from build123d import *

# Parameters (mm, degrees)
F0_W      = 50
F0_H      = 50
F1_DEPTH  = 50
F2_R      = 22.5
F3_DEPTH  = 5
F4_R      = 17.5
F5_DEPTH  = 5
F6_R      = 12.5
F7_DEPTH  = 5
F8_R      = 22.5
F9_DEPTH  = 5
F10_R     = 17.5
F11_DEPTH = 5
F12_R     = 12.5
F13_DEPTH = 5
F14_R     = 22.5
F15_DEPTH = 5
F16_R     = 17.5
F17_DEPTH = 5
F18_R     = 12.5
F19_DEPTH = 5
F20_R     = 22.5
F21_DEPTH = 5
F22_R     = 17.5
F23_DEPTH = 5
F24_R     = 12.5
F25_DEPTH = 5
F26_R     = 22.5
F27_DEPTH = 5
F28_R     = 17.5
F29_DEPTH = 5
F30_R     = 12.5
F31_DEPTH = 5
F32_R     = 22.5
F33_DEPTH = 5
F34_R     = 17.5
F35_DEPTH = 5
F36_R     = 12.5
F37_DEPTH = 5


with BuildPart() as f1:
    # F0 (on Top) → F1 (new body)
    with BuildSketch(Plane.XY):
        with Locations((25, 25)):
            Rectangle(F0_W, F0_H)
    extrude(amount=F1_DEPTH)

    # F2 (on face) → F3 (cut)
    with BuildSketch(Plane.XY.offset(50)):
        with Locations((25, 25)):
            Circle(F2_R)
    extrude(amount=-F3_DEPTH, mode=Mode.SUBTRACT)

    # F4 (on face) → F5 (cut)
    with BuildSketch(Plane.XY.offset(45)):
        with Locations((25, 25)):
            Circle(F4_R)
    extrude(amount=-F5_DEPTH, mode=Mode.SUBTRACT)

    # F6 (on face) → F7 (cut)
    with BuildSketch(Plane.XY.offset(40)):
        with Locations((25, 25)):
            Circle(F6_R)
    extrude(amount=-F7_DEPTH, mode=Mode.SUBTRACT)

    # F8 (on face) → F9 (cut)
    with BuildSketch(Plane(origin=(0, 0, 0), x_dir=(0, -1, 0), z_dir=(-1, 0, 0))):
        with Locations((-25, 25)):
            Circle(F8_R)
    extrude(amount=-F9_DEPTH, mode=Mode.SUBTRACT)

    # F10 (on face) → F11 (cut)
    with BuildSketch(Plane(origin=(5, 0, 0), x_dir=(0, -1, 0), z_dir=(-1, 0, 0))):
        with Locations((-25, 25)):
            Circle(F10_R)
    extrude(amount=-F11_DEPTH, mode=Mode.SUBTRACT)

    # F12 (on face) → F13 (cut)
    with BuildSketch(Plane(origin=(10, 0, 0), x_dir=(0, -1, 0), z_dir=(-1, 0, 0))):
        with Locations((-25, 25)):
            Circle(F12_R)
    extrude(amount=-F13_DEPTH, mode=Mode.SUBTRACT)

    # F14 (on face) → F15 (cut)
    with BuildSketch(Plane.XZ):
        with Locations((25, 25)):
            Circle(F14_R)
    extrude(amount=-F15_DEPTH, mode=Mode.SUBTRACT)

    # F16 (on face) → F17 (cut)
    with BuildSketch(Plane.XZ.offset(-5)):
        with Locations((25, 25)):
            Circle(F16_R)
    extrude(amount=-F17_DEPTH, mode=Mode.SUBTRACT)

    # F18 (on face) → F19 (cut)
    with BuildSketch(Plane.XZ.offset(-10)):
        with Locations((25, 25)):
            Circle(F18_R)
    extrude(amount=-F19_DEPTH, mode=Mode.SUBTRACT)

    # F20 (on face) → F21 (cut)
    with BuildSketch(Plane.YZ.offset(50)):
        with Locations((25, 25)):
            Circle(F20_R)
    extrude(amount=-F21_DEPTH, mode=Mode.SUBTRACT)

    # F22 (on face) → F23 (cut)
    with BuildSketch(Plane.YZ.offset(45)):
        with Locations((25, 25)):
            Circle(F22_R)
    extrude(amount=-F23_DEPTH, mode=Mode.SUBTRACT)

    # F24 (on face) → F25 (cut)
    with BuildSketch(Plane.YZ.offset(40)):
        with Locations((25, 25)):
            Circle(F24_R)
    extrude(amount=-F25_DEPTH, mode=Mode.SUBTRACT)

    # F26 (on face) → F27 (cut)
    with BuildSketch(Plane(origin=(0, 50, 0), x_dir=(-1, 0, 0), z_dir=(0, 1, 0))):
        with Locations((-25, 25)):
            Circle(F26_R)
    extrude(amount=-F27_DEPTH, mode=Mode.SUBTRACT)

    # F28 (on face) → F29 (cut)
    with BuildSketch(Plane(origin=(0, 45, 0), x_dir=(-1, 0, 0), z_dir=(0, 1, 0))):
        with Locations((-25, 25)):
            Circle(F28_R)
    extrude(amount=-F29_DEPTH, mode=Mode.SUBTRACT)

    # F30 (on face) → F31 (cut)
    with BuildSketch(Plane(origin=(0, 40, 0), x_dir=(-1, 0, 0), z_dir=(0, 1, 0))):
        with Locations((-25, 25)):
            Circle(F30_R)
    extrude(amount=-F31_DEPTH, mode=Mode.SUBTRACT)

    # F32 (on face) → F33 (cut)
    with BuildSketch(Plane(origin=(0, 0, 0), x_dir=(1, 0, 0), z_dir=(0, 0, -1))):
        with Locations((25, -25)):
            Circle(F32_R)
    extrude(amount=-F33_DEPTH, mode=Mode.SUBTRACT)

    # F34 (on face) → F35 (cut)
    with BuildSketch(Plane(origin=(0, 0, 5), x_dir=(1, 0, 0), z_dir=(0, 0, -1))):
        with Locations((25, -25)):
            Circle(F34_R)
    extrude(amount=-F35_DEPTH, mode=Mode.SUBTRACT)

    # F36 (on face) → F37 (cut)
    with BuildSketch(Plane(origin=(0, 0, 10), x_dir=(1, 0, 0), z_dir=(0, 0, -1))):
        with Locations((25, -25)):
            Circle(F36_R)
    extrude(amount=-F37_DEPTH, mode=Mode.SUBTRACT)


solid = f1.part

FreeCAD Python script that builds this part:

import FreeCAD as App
import Part
import Sketcher

V = App.Vector
Q = App.Units.Quantity

doc = App.newDocument("Part")
body = doc.addObject("PartDesign::Body", "Body")

sketch1 = body.newObject("Sketcher::SketchObject", "Sketch")
sketch1.AttachmentSupport = (doc.getObject("XY_Plane"), [""])
sketch1.MapMode = "FlatFace"
sketch1.addGeometry([
    Part.LineSegment(V(0, 50, 0), V(0, 0, 0)),
    Part.LineSegment(V(0, 0, 0), V(50, 0, 0)),
    Part.LineSegment(V(50, 0, 0), V(50, 50, 0)),
    Part.LineSegment(V(50, 50, 0), V(0, 50, 0)),
], False)
sketch1.addConstraint([
    Sketcher.Constraint("Coincident", 0, 2, 1, 1),
    Sketcher.Constraint("Coincident", 1, 2, 2, 1),
    Sketcher.Constraint("Coincident", 2, 2, 3, 1),
    Sketcher.Constraint("Coincident", 3, 2, 0, 1),
    Sketcher.Constraint("Vertical", 0),
    Sketcher.Constraint("Horizontal", 1),
    Sketcher.Constraint("Vertical", 2),
    Sketcher.Constraint("Horizontal", 3),
    Sketcher.Constraint("Coincident", 0, 2, -1, 1),
    Sketcher.Constraint("Equal", 3, 0),
    Sketcher.Constraint("DistanceX", 1, 1, 1, 2, Q("50 mm")),
])
pad1 = body.newObject("PartDesign::Pad", "Pad")
pad1.Profile = sketch1
pad1.Length = 50

sketch2 = body.newObject("Sketcher::SketchObject", "Sketch001")
sketch2.AttachmentSupport = (doc.getObject("XY_Plane"), [""])
sketch2.MapMode = "FlatFace"
sketch2.AttachmentOffset = App.Placement(V(0, 0, 50), App.Rotation())
sketch2.addGeometry(Part.Circle(V(25, 25, 0), V(0, 0, 1), 22), False)
sketch2.addConstraint([
    Sketcher.Constraint("Diameter", 0, Q("45 mm")),
    Sketcher.Constraint("DistanceX", -1, 1, 0, 3, Q("25 mm")),
    Sketcher.Constraint("DistanceY", -1, 1, 0, 3, Q("25 mm")),
])
pocket1 = body.newObject("PartDesign::Pocket", "Pocket")
pocket1.Profile = sketch2
pocket1.Length = 5

sketch3 = body.newObject("Sketcher::SketchObject", "Sketch002")
sketch3.AttachmentSupport = (doc.getObject("XY_Plane"), [""])
sketch3.MapMode = "FlatFace"
sketch3.AttachmentOffset = App.Placement(V(0, 0, 45), App.Rotation())
sketch3.addGeometry(Part.Circle(V(25, 25, 0), V(0, 0, 1), 18), False)
sketch3.addConstraint([
    Sketcher.Constraint("Diameter", 0, Q("35 mm")),
    Sketcher.Constraint("DistanceX", -1, 1, 0, 3, Q("25 mm")),
    Sketcher.Constraint("DistanceY", -1, 1, 0, 3, Q("25 mm")),
])
pocket2 = body.newObject("PartDesign::Pocket", "Pocket001")
pocket2.Profile = sketch3
pocket2.Length = 5

sketch4 = body.newObject("Sketcher::SketchObject", "Sketch003")
sketch4.AttachmentSupport = (doc.getObject("XY_Plane"), [""])
sketch4.MapMode = "FlatFace"
sketch4.AttachmentOffset = App.Placement(V(0, 0, 40), App.Rotation())
sketch4.addGeometry(Part.Circle(V(25, 25, 0), V(0, 0, 1), 12), False)
sketch4.addConstraint([
    Sketcher.Constraint("Diameter", 0, Q("25 mm")),
    Sketcher.Constraint("DistanceX", -1, 1, 0, 3, Q("25 mm")),
    Sketcher.Constraint("DistanceY", -1, 1, 0, 3, Q("25 mm")),
])
pocket3 = body.newObject("PartDesign::Pocket", "Pocket002")
pocket3.Profile = sketch4
pocket3.Length = 5

sketch5 = body.newObject("Sketcher::SketchObject", "Sketch004")
sketch5.AttachmentSupport = (doc.getObject("YZ_Plane"), [""])
sketch5.MapMode = "FlatFace"
sketch5.addGeometry(Part.Circle(V(25, 25, 0), V(0, 0, 1), 22), False)
sketch5.addConstraint([
    Sketcher.Constraint("Diameter", 0, Q("45 mm")),
    Sketcher.Constraint("DistanceX", -1, 1, 0, 3, Q("25 mm")),
    Sketcher.Constraint("DistanceY", -1, 1, 0, 3, Q("25 mm")),
])
pocket4 = body.newObject("PartDesign::Pocket", "Pocket003")
pocket4.Profile = sketch5
pocket4.Length = 5
pocket4.Reversed = True

sketch6 = body.newObject("Sketcher::SketchObject", "Sketch005")
sketch6.AttachmentSupport = (doc.getObject("YZ_Plane"), [""])
sketch6.MapMode = "FlatFace"
sketch6.AttachmentOffset = App.Placement(V(0, 0, 5), App.Rotation())
sketch6.addGeometry(Part.Circle(V(25, 25, 0), V(0, 0, 1), 18), False)
sketch6.addConstraint([
    Sketcher.Constraint("Diameter", 0, Q("35 mm")),
    Sketcher.Constraint("DistanceX", -1, 1, 0, 3, Q("25 mm")),
    Sketcher.Constraint("DistanceY", -1, 1, 0, 3, Q("25 mm")),
])
pocket5 = body.newObject("PartDesign::Pocket", "Pocket004")
pocket5.Profile = sketch6
pocket5.Length = 5
pocket5.Reversed = True

sketch7 = body.newObject("Sketcher::SketchObject", "Sketch006")
sketch7.AttachmentSupport = (doc.getObject("YZ_Plane"), [""])
sketch7.MapMode = "FlatFace"
sketch7.AttachmentOffset = App.Placement(V(0, 0, 10), App.Rotation())
sketch7.addGeometry(Part.Circle(V(25, 25, 0), V(0, 0, 1), 12), False)
sketch7.addConstraint([
    Sketcher.Constraint("Diameter", 0, Q("25 mm")),
    Sketcher.Constraint("DistanceX", -1, 1, 0, 3, Q("25 mm")),
    Sketcher.Constraint("DistanceY", -1, 1, 0, 3, Q("25 mm")),
])
pocket6 = body.newObject("PartDesign::Pocket", "Pocket005")
pocket6.Profile = sketch7
pocket6.Length = 5
pocket6.Reversed = True

sketch8 = body.newObject("Sketcher::SketchObject", "Sketch007")
sketch8.AttachmentSupport = (doc.getObject("XZ_Plane"), [""])
sketch8.MapMode = "FlatFace"
sketch8.addGeometry(Part.Circle(V(25, 25, 0), V(0, 0, 1), 22), False)
sketch8.addConstraint([
    Sketcher.Constraint("Diameter", 0, Q("45 mm")),
    Sketcher.Constraint("DistanceX", -1, 1, 0, 3, Q("25 mm")),
    Sketcher.Constraint("DistanceY", -1, 1, 0, 3, Q("25 mm")),
])
pocket7 = body.newObject("PartDesign::Pocket", "Pocket006")
pocket7.Profile = sketch8
pocket7.Length = 5

sketch9 = body.newObject("Sketcher::SketchObject", "Sketch008")
sketch9.AttachmentSupport = (doc.getObject("XZ_Plane"), [""])
sketch9.MapMode = "FlatFace"
sketch9.AttachmentOffset = App.Placement(V(0, 0, -5), App.Rotation())
sketch9.addGeometry(Part.Circle(V(25, 25, 0), V(0, 0, 1), 18), False)
sketch9.addConstraint([
    Sketcher.Constraint("Diameter", 0, Q("35 mm")),
    Sketcher.Constraint("DistanceX", -1, 1, 0, 3, Q("25 mm")),
    Sketcher.Constraint("DistanceY", -1, 1, 0, 3, Q("25 mm")),
])
pocket8 = body.newObject("PartDesign::Pocket", "Pocket007")
pocket8.Profile = sketch9
pocket8.Length = 5

sketch10 = body.newObject("Sketcher::SketchObject", "Sketch009")
sketch10.AttachmentSupport = (doc.getObject("XZ_Plane"), [""])
sketch10.MapMode = "FlatFace"
sketch10.AttachmentOffset = App.Placement(V(0, 0, -10), App.Rotation())
sketch10.addGeometry(Part.Circle(V(25, 25, 0), V(0, 0, 1), 12), False)
sketch10.addConstraint([
    Sketcher.Constraint("Diameter", 0, Q("25 mm")),
    Sketcher.Constraint("DistanceX", -1, 1, 0, 3, Q("25 mm")),
    Sketcher.Constraint("DistanceY", -1, 1, 0, 3, Q("25 mm")),
])
pocket9 = body.newObject("PartDesign::Pocket", "Pocket008")
pocket9.Profile = sketch10
pocket9.Length = 5

sketch11 = body.newObject("Sketcher::SketchObject", "Sketch010")
sketch11.AttachmentSupport = (doc.getObject("YZ_Plane"), [""])
sketch11.MapMode = "FlatFace"
sketch11.AttachmentOffset = App.Placement(V(0, 0, 50), App.Rotation())
sketch11.addGeometry(Part.Circle(V(25, 25, 0), V(0, 0, 1), 22), False)
sketch11.addConstraint([
    Sketcher.Constraint("Diameter", 0, Q("45 mm")),
    Sketcher.Constraint("DistanceX", -1, 1, 0, 3, Q("25 mm")),
    Sketcher.Constraint("DistanceY", -1, 1, 0, 3, Q("25 mm")),
])
pocket10 = body.newObject("PartDesign::Pocket", "Pocket009")
pocket10.Profile = sketch11
pocket10.Length = 5

sketch12 = body.newObject("Sketcher::SketchObject", "Sketch011")
sketch12.AttachmentSupport = (doc.getObject("YZ_Plane"), [""])
sketch12.MapMode = "FlatFace"
sketch12.AttachmentOffset = App.Placement(V(0, 0, 45), App.Rotation())
sketch12.addGeometry(Part.Circle(V(25, 25, 0), V(0, 0, 1), 18), False)
sketch12.addConstraint([
    Sketcher.Constraint("Diameter", 0, Q("35 mm")),
    Sketcher.Constraint("DistanceX", -1, 1, 0, 3, Q("25 mm")),
    Sketcher.Constraint("DistanceY", -1, 1, 0, 3, Q("25 mm")),
])
pocket11 = body.newObject("PartDesign::Pocket", "Pocket010")
pocket11.Profile = sketch12
pocket11.Length = 5

sketch13 = body.newObject("Sketcher::SketchObject", "Sketch012")
sketch13.AttachmentSupport = (doc.getObject("YZ_Plane"), [""])
sketch13.MapMode = "FlatFace"
sketch13.AttachmentOffset = App.Placement(V(0, 0, 40), App.Rotation())
sketch13.addGeometry(Part.Circle(V(25, 25, 0), V(0, 0, 1), 12), False)
sketch13.addConstraint([
    Sketcher.Constraint("Diameter", 0, Q("25 mm")),
    Sketcher.Constraint("DistanceX", -1, 1, 0, 3, Q("25 mm")),
    Sketcher.Constraint("DistanceY", -1, 1, 0, 3, Q("25 mm")),
])
pocket12 = body.newObject("PartDesign::Pocket", "Pocket011")
pocket12.Profile = sketch13
pocket12.Length = 5

sketch14 = body.newObject("Sketcher::SketchObject", "Sketch013")
sketch14.AttachmentSupport = (doc.getObject("XZ_Plane"), [""])
sketch14.MapMode = "FlatFace"
sketch14.AttachmentOffset = App.Placement(V(0, 0, -50), App.Rotation())
sketch14.addGeometry(Part.Circle(V(25, 25, 0), V(0, 0, 1), 22), False)
sketch14.addConstraint([
    Sketcher.Constraint("Diameter", 0, Q("45 mm")),
    Sketcher.Constraint("DistanceX", -1, 1, 0, 3, Q("25 mm")),
    Sketcher.Constraint("DistanceY", -1, 1, 0, 3, Q("25 mm")),
])
pocket13 = body.newObject("PartDesign::Pocket", "Pocket012")
pocket13.Profile = sketch14
pocket13.Length = 5
pocket13.Reversed = True

sketch15 = body.newObject("Sketcher::SketchObject", "Sketch014")
sketch15.AttachmentSupport = (doc.getObject("XZ_Plane"), [""])
sketch15.MapMode = "FlatFace"
sketch15.AttachmentOffset = App.Placement(V(0, 0, -45), App.Rotation())
sketch15.addGeometry(Part.Circle(V(25, 25, 0), V(0, 0, 1), 18), False)
sketch15.addConstraint([
    Sketcher.Constraint("Diameter", 0, Q("35 mm")),
    Sketcher.Constraint("DistanceX", -1, 1, 0, 3, Q("25 mm")),
    Sketcher.Constraint("DistanceY", -1, 1, 0, 3, Q("25 mm")),
])
pocket14 = body.newObject("PartDesign::Pocket", "Pocket013")
pocket14.Profile = sketch15
pocket14.Length = 5
pocket14.Reversed = True

sketch16 = body.newObject("Sketcher::SketchObject", "Sketch015")
sketch16.AttachmentSupport = (doc.getObject("XZ_Plane"), [""])
sketch16.MapMode = "FlatFace"
sketch16.AttachmentOffset = App.Placement(V(0, 0, -40), App.Rotation())
sketch16.addGeometry(Part.Circle(V(25, 25, 0), V(0, 0, 1), 12), False)
sketch16.addConstraint([
    Sketcher.Constraint("Diameter", 0, Q("25 mm")),
    Sketcher.Constraint("DistanceX", -1, 1, 0, 3, Q("25 mm")),
    Sketcher.Constraint("DistanceY", -1, 1, 0, 3, Q("25 mm")),
])
pocket15 = body.newObject("PartDesign::Pocket", "Pocket014")
pocket15.Profile = sketch16
pocket15.Length = 5
pocket15.Reversed = True

sketch17 = body.newObject("Sketcher::SketchObject", "Sketch016")
sketch17.AttachmentSupport = (doc.getObject("XY_Plane"), [""])
sketch17.MapMode = "FlatFace"
sketch17.addGeometry(Part.Circle(V(25, 25, 0), V(0, 0, 1), 22), False)
sketch17.addConstraint([
    Sketcher.Constraint("Diameter", 0, Q("45 mm")),
    Sketcher.Constraint("DistanceX", -1, 1, 0, 3, Q("25 mm")),
    Sketcher.Constraint("DistanceY", -1, 1, 0, 3, Q("25 mm")),
])
pocket16 = body.newObject("PartDesign::Pocket", "Pocket015")
pocket16.Profile = sketch17
pocket16.Length = 5
pocket16.Reversed = True

sketch18 = body.newObject("Sketcher::SketchObject", "Sketch017")
sketch18.AttachmentSupport = (doc.getObject("XY_Plane"), [""])
sketch18.MapMode = "FlatFace"
sketch18.AttachmentOffset = App.Placement(V(0, 0, 5), App.Rotation())
sketch18.addGeometry(Part.Circle(V(25, 25, 0), V(0, 0, 1), 18), False)
sketch18.addConstraint([
    Sketcher.Constraint("Diameter", 0, Q("35 mm")),
    Sketcher.Constraint("DistanceX", -1, 1, 0, 3, Q("25 mm")),
    Sketcher.Constraint("DistanceY", -1, 1, 0, 3, Q("25 mm")),
])
pocket17 = body.newObject("PartDesign::Pocket", "Pocket016")
pocket17.Profile = sketch18
pocket17.Length = 5
pocket17.Reversed = True

sketch19 = body.newObject("Sketcher::SketchObject", "Sketch018")
sketch19.AttachmentSupport = (doc.getObject("XY_Plane"), [""])
sketch19.MapMode = "FlatFace"
sketch19.AttachmentOffset = App.Placement(V(0, 0, 10), App.Rotation())
sketch19.addGeometry(Part.Circle(V(25, 25, 0), V(0, 0, 1), 12), False)
sketch19.addConstraint([
    Sketcher.Constraint("Diameter", 0, Q("25 mm")),
    Sketcher.Constraint("DistanceX", -1, 1, 0, 3, Q("25 mm")),
    Sketcher.Constraint("DistanceY", -1, 1, 0, 3, Q("25 mm")),
])
pocket18 = body.newObject("PartDesign::Pocket", "Pocket017")
pocket18.Profile = sketch19
pocket18.Length = 5
pocket18.Reversed = True

doc.recompute()
